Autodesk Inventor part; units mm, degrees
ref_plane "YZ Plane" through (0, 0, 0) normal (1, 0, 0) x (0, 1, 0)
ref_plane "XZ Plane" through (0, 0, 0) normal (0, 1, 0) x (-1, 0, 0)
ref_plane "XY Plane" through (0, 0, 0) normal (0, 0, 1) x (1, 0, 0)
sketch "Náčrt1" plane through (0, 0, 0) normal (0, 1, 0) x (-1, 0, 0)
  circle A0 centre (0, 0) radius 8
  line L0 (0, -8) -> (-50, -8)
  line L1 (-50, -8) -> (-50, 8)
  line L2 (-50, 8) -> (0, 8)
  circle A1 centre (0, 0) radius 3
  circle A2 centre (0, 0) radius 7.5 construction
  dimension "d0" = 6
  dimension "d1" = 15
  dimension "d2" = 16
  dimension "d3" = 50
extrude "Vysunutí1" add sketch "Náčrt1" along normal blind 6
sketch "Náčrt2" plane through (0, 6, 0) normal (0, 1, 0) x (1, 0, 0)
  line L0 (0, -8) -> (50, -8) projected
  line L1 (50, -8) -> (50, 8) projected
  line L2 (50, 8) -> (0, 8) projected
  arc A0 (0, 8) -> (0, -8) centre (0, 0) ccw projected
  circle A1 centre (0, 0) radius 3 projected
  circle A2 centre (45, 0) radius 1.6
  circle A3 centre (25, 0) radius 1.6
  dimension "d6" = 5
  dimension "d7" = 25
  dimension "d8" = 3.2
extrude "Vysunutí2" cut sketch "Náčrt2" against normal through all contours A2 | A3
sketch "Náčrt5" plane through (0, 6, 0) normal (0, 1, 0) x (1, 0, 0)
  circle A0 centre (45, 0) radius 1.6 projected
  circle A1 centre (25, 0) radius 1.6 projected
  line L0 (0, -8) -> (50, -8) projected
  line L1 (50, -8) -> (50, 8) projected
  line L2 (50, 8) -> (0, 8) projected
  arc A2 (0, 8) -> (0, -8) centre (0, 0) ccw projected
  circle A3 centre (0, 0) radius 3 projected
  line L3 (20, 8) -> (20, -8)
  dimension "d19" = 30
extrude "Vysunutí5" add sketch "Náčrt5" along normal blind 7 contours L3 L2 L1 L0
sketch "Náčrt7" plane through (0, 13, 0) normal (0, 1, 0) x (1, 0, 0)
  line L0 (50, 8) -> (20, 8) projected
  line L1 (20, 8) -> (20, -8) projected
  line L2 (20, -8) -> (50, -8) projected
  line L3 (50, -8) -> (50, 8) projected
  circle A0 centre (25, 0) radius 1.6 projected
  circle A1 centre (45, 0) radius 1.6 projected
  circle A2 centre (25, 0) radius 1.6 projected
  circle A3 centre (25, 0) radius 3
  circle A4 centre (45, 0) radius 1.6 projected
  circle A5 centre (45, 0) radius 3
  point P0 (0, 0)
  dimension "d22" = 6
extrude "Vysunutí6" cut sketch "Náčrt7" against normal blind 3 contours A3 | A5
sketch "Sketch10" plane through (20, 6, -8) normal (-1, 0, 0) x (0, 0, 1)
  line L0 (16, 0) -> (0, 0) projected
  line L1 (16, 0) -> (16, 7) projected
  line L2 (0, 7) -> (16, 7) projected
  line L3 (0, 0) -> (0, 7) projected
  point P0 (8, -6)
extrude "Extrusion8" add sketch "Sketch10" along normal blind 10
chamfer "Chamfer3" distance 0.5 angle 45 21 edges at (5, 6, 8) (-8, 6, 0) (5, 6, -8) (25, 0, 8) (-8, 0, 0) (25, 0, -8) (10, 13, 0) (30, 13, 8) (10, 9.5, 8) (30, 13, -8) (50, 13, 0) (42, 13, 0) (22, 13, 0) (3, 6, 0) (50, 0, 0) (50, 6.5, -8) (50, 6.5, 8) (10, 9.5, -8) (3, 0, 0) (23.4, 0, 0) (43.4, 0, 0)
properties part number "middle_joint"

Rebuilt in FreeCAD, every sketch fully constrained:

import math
import FreeCAD as App
import Part
import Sketcher
from FreeCAD import Vector
Q = App.Units.Quantity


def edges_at(feature, points):
    """Names of the edges that pass closest to the given points."""
    edges = feature.Shape.Edges
    near = lambda p: min(range(len(edges)), key=lambda i: edges[i].distToShape(Part.Vertex(*p))[0])
    return sorted({f"Edge{near(p) + 1}" for p in points})

doc = App.newDocument("Part")
body = doc.addObject("PartDesign::Body", "Body")

sketch1 = body.newObject("Sketcher::SketchObject", "Sketch")
sketch1.AttachmentSupport = (doc.getObject("XZ_Plane"), [""])
sketch1.MapMode = "FlatFace"
sketch1.addGeometry([
    Part.ArcOfCircle(Part.Circle(Vector(0, 0, 0), Vector(0, 0, 1), 8), math.radians(90), math.radians(270)),
    Part.LineSegment(Vector(0, 8, 0), Vector(50, 8, 0)),
    Part.LineSegment(Vector(50, 8, 0), Vector(50, -8, 0)),
    Part.LineSegment(Vector(50, -8, 0), Vector(0, -8, 0)),
    Part.Circle(Vector(0, 0, 0), Vector(0, 0, 1), 3),
], False)
sketch1.addConstraint([
    Sketcher.Constraint("Tangent", 0, 1, 1, 1),
    Sketcher.Constraint("Coincident", 1, 2, 2, 1),
    Sketcher.Constraint("Coincident", 2, 2, 3, 1),
    Sketcher.Constraint("Tangent", 3, 2, 0, 2),
    Sketcher.Constraint("Horizontal", 1),
    Sketcher.Constraint("Vertical", 2),
    Sketcher.Constraint("Horizontal", 3),
    Sketcher.Constraint("Coincident", 0, 3, -1, 1),
    Sketcher.Constraint("Coincident", 4, 3, -1, 1),
    Sketcher.Constraint("Diameter", 4, Q("6 mm")),
    Sketcher.Constraint("Radius", 0, Q("8 mm")),
    Sketcher.Constraint("DistanceX", 1, 1, 1, 2, Q("50 mm")),
])
pad1 = body.newObject("PartDesign::Pad", "Pad")
pad1.Profile = sketch1
pad1.Length = 6
pad1.Reversed = True

sketch2 = body.newObject("Sketcher::SketchObject", "Sketch001")
sketch2.AttachmentSupport = (doc.getObject("XZ_Plane"), [""])
sketch2.MapMode = "FlatFace"
sketch2.AttachmentOffset = App.Placement(Vector(0, 0, -6), App.Rotation())
sketch2.addGeometry([
    Part.Circle(Vector(45, 0, 0), Vector(0, 0, 1), 1.6),
    Part.Circle(Vector(25, 0, 0), Vector(0, 0, 1), 1.6),
], False)
sketch2.addConstraint([
    Sketcher.Constraint("Equal", 0, 1),
    Sketcher.Constraint("PointOnObject", 0, 3, -1),
    Sketcher.Constraint("PointOnObject", 1, 3, -1),
    Sketcher.Constraint("Diameter", 0, Q("3.2 mm")),
    Sketcher.Constraint("DistanceX", -1, 1, 1, 3, Q("25 mm")),
    Sketcher.Constraint("DistanceX", -1, 1, 0, 3, Q("45 mm")),
])
pocket1 = body.newObject("PartDesign::Pocket", "Pocket")
pocket1.Profile = sketch2
pocket1.Type = "ThroughAll"
pocket1.Reversed = True

sketch3 = body.newObject("Sketcher::SketchObject", "Sketch002")
sketch3.AttachmentSupport = (doc.getObject("XZ_Plane"), [""])
sketch3.MapMode = "FlatFace"
sketch3.AttachmentOffset = App.Placement(Vector(0, 0, -6), App.Rotation())
sketch3.addGeometry([
    Part.LineSegment(Vector(20, -8, 0), Vector(20, 8, 0)),
    Part.LineSegment(Vector(20, 8, 0), Vector(50, 8, 0)),
    Part.LineSegment(Vector(50, 8, 0), Vector(50, -8, 0)),
    Part.LineSegment(Vector(50, -8, 0), Vector(20, -8, 0)),
    Part.Circle(Vector(25, 0, 0), Vector(0, 0, 1), 1.6),
    Part.Circle(Vector(45, 0, 0), Vector(0, 0, 1), 1.6),
], False)
sketch3.addConstraint([
    Sketcher.Constraint("Coincident", 0, 2, 1, 1),
    Sketcher.Constraint("Coincident", 1, 2, 2, 1),
    Sketcher.Constraint("Coincident", 2, 2, 3, 1),
    Sketcher.Constraint("Coincident", 3, 2, 0, 1),
    Sketcher.Constraint("Vertical", 0),
    Sketcher.Constraint("Horizontal", 1),
    Sketcher.Constraint("Vertical", 2),
    Sketcher.Constraint("Horizontal", 3),
    Sketcher.Constraint("Equal", 4, 5),
    Sketcher.Constraint("PointOnObject", 4, 3, -1),
    Sketcher.Constraint("PointOnObject", 5, 3, -1),
    Sketcher.Constraint("DistanceX", 1, 1, 1, 2, Q("30 mm")),
    Sketcher.Constraint("Diameter", 4, Q("3.2 mm")),
    Sketcher.Constraint("DistanceY", 0, 1, 0, 2, Q("16 mm")),
    Sketcher.Constraint("DistanceX", -1, 1, 4, 3, Q("25 mm")),
    Sketcher.Constraint("DistanceX", -1, 1, 5, 3, Q("45 mm")),
    Sketcher.Constraint("DistanceX", -1, 1, 0, 2, Q("20 mm")),
    Sketcher.Constraint("DistanceY", -1, 1, 0, 2, Q("8 mm")),
])
pad2 = body.newObject("PartDesign::Pad", "Pad001")
pad2.Profile = sketch3
pad2.Length = 7
pad2.Reversed = True

sketch4 = body.newObject("Sketcher::SketchObject", "Sketch003")
sketch4.AttachmentSupport = (doc.getObject("XZ_Plane"), [""])
sketch4.MapMode = "FlatFace"
sketch4.AttachmentOffset = App.Placement(Vector(0, 0, -13), App.Rotation())
sketch4.addGeometry([
    Part.Circle(Vector(25, 0, 0), Vector(0, 0, 1), 3),
    Part.Circle(Vector(25, 0, 0), Vector(0, 0, 1), 1.6),
    Part.Circle(Vector(45, 0, 0), Vector(0, 0, 1), 3),
    Part.Circle(Vector(45, 0, 0), Vector(0, 0, 1), 1.6),
], False)
sketch4.addConstraint([
    Sketcher.Constraint("Coincident", 1, 3, 0, 3),
    Sketcher.Constraint("Coincident", 3, 3, 2, 3),
    Sketcher.Constraint("Equal", 0, 2),
    Sketcher.Constraint("Equal", 1, 3),
    Sketcher.Constraint("PointOnObject", 0, 3, -1),
    Sketcher.Constraint("PointOnObject", 2, 3, -1),
    Sketcher.Constraint("Diameter", 0, Q("6 mm")),
    Sketcher.Constraint("Diameter", 1, Q("3.2 mm")),
    Sketcher.Constraint("DistanceX", -1, 1, 0, 3, Q("25 mm")),
    Sketcher.Constraint("DistanceX", -1, 1, 2, 3, Q("45 mm")),
])
pocket2 = body.newObject("PartDesign::Pocket", "Pocket001")
pocket2.Profile = sketch4
pocket2.Length = 3
pocket2.Reversed = True

sketch5 = body.newObject("Sketcher::SketchObject", "Sketch004")
sketch5.AttachmentSupport = (doc.getObject("YZ_Plane"), [""])
sketch5.MapMode = "FlatFace"
sketch5.AttachmentOffset = App.Placement(Vector(0, 0, 20), App.Rotation())
sketch5.addGeometry([
    Part.LineSegment(Vector(6, -8, 0), Vector(6, 8, 0)),
    Part.LineSegment(Vector(6, 8, 0), Vector(13, 8, 0)),
    Part.LineSegment(Vector(13, 8, 0), Vector(13, -8, 0)),
    Part.LineSegment(Vector(13, -8, 0), Vector(6, -8, 0)),
], False)
sketch5.addConstraint([
    Sketcher.Constraint("Coincident", 0, 2, 1, 1),
    Sketcher.Constraint("Coincident", 1, 2, 2, 1),
    Sketcher.Constraint("Coincident", 2, 2, 3, 1),
    Sketcher.Constraint("Coincident", 3, 2, 0, 1),
    Sketcher.Constraint("Vertical", 0),
    Sketcher.Constraint("Horizontal", 1),
    Sketcher.Constraint("Vertical", 2),
    Sketcher.Constraint("Horizontal", 3),
    Sketcher.Constraint("DistanceX", 1, 1, 1, 2, Q("7 mm")),
    Sketcher.Constraint("DistanceY", 0, 1, 0, 2, Q("16 mm")),
    Sketcher.Constraint("DistanceX", -1, 1, 0, 2, Q("6 mm")),
    Sketcher.Constraint("DistanceY", -1, 1, 0, 2, Q("8 mm")),
])
pad3 = body.newObject("PartDesign::Pad", "Pad002")
pad3.Profile = sketch5
pad3.Length = 10
pad3.Reversed = True
doc.recompute()

chamfer = body.newObject("PartDesign::Chamfer", "Chamfer")
chamfer.Base = (pad3, edges_at(pad3, [
    (5, 6, 8),
    (-8, 6, 0),
    (5, 6, -8),
    (25, 0, 8),
    (-8, 0, 0),
    (25, 0, -8),
    (10, 13, 0),
    (30, 13, 8),
    (10, 9.5, 8),
    (30, 13, -8),
    (50, 13, 0),
    (42, 13, 0),
    (22, 13, 0),
    (3, 6, 0),
    (50, 0, 0),
    (50, 6.5, -8),
    (50, 6.5, 8),
    (10, 9.5, -8),
    (3, 0, 0),
    (23.4, 0, 0),
    (43.4, 0, 0),
]))
chamfer.Size = 0.5

doc.recompute()
